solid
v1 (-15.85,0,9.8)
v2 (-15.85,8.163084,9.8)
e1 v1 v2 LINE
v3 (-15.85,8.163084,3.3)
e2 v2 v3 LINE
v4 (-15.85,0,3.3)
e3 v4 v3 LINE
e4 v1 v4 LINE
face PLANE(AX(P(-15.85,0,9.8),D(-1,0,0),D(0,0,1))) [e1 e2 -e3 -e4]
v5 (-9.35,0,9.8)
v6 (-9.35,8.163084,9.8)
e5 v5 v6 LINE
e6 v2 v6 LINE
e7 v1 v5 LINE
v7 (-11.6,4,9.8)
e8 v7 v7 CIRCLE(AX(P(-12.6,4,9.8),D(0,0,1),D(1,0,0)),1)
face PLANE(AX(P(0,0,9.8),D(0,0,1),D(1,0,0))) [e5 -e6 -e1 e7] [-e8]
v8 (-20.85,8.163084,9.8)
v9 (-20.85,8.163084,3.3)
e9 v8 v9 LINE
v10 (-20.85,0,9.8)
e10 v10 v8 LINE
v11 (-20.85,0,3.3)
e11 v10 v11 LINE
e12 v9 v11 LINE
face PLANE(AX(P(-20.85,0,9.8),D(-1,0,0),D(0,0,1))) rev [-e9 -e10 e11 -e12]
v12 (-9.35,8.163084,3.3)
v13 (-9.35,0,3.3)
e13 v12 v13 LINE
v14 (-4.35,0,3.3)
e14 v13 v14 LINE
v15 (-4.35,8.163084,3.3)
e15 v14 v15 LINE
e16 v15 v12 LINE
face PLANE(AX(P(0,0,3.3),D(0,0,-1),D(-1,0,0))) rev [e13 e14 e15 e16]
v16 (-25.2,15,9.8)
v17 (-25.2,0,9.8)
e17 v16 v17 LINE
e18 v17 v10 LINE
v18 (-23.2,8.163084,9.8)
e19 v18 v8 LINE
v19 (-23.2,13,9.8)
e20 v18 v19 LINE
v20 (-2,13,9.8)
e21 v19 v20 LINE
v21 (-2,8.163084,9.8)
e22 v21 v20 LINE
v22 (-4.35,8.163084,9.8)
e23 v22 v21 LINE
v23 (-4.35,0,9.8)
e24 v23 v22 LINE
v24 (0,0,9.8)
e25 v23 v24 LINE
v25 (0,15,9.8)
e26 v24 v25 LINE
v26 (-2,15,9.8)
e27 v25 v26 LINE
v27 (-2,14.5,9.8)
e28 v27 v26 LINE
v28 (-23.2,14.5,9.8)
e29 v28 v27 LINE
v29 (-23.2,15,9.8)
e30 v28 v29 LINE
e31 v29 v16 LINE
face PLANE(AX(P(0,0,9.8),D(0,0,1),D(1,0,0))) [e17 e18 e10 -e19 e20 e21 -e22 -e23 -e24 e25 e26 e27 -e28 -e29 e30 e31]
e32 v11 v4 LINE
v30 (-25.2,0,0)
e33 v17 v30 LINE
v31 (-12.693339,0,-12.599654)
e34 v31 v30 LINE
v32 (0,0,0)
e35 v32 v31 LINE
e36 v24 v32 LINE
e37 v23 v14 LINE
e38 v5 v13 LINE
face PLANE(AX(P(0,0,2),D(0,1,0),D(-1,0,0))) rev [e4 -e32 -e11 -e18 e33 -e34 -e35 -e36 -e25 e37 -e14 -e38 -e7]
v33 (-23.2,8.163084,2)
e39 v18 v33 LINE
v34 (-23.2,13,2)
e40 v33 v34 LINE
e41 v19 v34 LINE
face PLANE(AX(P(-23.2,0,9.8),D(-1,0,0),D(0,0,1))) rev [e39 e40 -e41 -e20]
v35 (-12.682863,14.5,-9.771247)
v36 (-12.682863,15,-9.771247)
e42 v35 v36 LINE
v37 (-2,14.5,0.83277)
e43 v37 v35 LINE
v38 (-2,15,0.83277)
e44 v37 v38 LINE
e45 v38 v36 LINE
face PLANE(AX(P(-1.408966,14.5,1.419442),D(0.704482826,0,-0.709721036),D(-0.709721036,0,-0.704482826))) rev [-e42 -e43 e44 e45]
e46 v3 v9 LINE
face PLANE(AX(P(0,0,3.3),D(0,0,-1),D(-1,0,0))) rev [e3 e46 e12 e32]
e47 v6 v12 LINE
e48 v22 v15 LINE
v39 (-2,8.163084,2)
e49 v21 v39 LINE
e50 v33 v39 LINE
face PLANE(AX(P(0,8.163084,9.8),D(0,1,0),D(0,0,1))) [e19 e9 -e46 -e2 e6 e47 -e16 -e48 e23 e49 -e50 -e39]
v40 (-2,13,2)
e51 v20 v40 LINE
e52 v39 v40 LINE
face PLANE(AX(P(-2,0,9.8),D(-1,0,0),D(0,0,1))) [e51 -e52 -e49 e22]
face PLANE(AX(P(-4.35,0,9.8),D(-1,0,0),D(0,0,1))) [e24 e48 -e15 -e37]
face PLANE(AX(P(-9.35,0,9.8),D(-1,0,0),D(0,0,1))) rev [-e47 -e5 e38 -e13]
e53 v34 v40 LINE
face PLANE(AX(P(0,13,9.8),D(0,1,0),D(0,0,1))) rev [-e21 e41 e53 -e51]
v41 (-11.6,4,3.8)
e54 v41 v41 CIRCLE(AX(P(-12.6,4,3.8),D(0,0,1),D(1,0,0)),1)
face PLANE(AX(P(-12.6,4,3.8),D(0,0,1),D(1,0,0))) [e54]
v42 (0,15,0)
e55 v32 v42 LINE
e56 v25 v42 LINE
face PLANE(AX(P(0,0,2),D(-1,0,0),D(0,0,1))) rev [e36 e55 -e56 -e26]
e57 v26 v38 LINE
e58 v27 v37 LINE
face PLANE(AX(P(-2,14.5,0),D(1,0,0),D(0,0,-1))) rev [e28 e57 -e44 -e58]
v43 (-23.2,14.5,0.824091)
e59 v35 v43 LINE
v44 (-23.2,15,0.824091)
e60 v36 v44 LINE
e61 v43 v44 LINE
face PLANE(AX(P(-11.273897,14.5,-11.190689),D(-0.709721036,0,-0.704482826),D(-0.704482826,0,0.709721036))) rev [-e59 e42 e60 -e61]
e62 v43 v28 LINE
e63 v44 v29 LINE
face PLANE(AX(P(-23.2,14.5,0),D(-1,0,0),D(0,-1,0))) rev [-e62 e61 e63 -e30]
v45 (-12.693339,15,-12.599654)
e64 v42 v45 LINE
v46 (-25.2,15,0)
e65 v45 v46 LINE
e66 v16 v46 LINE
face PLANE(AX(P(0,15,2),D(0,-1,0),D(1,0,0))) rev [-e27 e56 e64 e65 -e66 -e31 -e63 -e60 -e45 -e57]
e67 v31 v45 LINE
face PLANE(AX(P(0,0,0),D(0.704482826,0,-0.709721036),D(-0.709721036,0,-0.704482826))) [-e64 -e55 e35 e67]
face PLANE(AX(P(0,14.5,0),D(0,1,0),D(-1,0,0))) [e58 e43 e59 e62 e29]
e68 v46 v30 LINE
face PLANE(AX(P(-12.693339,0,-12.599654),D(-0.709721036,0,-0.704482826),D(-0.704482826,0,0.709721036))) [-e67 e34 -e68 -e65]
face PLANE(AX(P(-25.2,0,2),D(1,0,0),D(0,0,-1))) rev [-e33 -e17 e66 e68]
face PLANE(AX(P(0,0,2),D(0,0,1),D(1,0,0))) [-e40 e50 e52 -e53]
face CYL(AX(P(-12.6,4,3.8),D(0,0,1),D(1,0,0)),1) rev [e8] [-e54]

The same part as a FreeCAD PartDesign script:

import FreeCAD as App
import Part
import Sketcher
from FreeCAD import Vector


def add_polygon(sketch, points):
    """Adds a closed chain of lines whose ends are joined by coincident constraints."""
    first, n = sketch.GeometryCount, len(points)
    for a, b in zip(points, points[1:] + points[:1]):
        sketch.addGeometry(Part.LineSegment(App.Vector(*a, 0), App.Vector(*b, 0)), False)
    for i in range(n):
        sketch.addConstraint(Sketcher.Constraint("Coincident", first + i, 2, first + (i + 1) % n, 1))

doc = App.newDocument("Part")
body = doc.addObject("PartDesign::Body", "Body")

sketch1 = body.newObject("Sketcher::SketchObject", "Sketch")
sketch1.AttachmentSupport = (doc.getObject("XY_Plane"), [""])
sketch1.MapMode = "FlatFace"
add_polygon(sketch1, [(-25, 15), (-25, 0), (0, 0), (0, 15)])
sketch1.addConstraint(Sketcher.Constraint("Vertical", 0))
sketch1.addConstraint(Sketcher.Constraint("Horizontal", 1))
sketch1.addConstraint(Sketcher.Constraint("Vertical", 2))
sketch1.addConstraint(Sketcher.Constraint("Horizontal", 3))
sketch1.addConstraint(Sketcher.Constraint("Coincident", 1, 2, -1, 1))
sketch1.addConstraint(Sketcher.Constraint("DistanceY", 0, 2, 0, 1, 15.0))
sketch1.addConstraint(Sketcher.Constraint("DistanceX", 1, 1, 1, 2, 25.2))
pad1 = body.newObject("PartDesign::Pad", "Pad")
pad1.Profile = sketch1
pad1.Length = 2

sketch2 = body.newObject("Sketcher::SketchObject", "Sketch001")
sketch2.AttachmentSupport = (doc.getObject("XY_Plane"), [""])
sketch2.MapMode = "FlatFace"
sketch2.AttachmentOffset = App.Placement(Vector(0, 0, 2), App.Rotation())
add_polygon(sketch2, [(-25.2, 15), (-25.2, 0), (-23.2, 0), (-23.2, 13), (-2, 13), (-2, 0), (0, 0), (0, 15)])
sketch2.addConstraint(Sketcher.Constraint("Vertical", 0))
sketch2.addConstraint(Sketcher.Constraint("Horizontal", 1))
sketch2.addConstraint(Sketcher.Constraint("Vertical", 2))
sketch2.addConstraint(Sketcher.Constraint("Horizontal", 3))
sketch2.addConstraint(Sketcher.Constraint("Vertical", 4))
sketch2.addConstraint(Sketcher.Constraint("Horizontal", 5))
sketch2.addConstraint(Sketcher.Constraint("Vertical", 6))
sketch2.addConstraint(Sketcher.Constraint("Horizontal", 7))
sketch2.addConstraint(Sketcher.Constraint("Coincident", 5, 2, -1, 1))
sketch2.addConstraint(Sketcher.Constraint("PointOnObject", 0, 2, -1))
sketch2.addConstraint(Sketcher.Constraint("Equal", 1, 5))
sketch2.addConstraint(Sketcher.Constraint("DistanceX", 1, 1, 1, 2, 2.0))
sketch2.addConstraint(Sketcher.Constraint("DistanceY", 0, 2, 0, 1, 15.0))
sketch2.addConstraint(Sketcher.Constraint("DistanceY", 2, 1, 2, 2, 13.0))
sketch2.addConstraint(Sketcher.Constraint("DistanceX", 3, 1, 3, 2, 21.2))
pad2 = body.newObject("PartDesign::Pad", "Pad001")
pad2.Profile = sketch2
pad2.Length = 7.8

sketch3 = body.newObject("Sketcher::SketchObject", "Sketch002")
sketch3.AttachmentSupport = (doc.getObject("XZ_Plane"), [""])
sketch3.MapMode = "FlatFace"
sketch3.AttachmentOffset = App.Placement(Vector(0, 0, -15), App.Rotation())
add_polygon(sketch3, [(0, 0), (-13, -13), (-25, 0)])
sketch3.addConstraint(Sketcher.Constraint("Horizontal", 2))
sketch3.addConstraint(Sketcher.Constraint("Coincident", 2, 2, -1, 1))
sketch3.addConstraint(Sketcher.Constraint("Perpendicular", 0, 1))
sketch3.addConstraint(Sketcher.Constraint("DistanceX", 2, 1, 2, 2, 25.2))
sketch3.addConstraint(Sketcher.Constraint("Distance", 0, 17.88497))
pad3 = body.newObject("PartDesign::Pad", "Pad002")
pad3.Profile = sketch3
pad3.Length = 15

sketch4 = body.newObject("Sketcher::SketchObject", "Sketch003")
sketch4.AttachmentSupport = (doc.getObject("XY_Plane"), [""])
sketch4.MapMode = "FlatFace"
sketch4.AttachmentOffset = App.Placement(Vector(0, 0, 2), App.Rotation())
add_polygon(sketch4, [(-15.8, 8.2), (-15.8, 0), (-9.3, 0), (-9.3, 8.2)])
add_polygon(sketch4, [(-4.3, 8.2), (-4.3, 0), (-2, 0), (-2, 8.2)])
add_polygon(sketch4, [(-23.2, 8.2), (-23.2, 0), (-20.9, 0), (-20.9, 8.2)])
sketch4.addConstraint(Sketcher.Constraint("Vertical", 0))
sketch4.addConstraint(Sketcher.Constraint("Horizontal", 1))
sketch4.addConstraint(Sketcher.Constraint("Vertical", 2))
sketch4.addConstraint(Sketcher.Constraint("Horizontal", 3))
sketch4.addConstraint(Sketcher.Constraint("Vertical", 4))
sketch4.addConstraint(Sketcher.Constraint("Horizontal", 5))
sketch4.addConstraint(Sketcher.Constraint("Vertical", 6))
sketch4.addConstraint(Sketcher.Constraint("Horizontal", 7))
sketch4.addConstraint(Sketcher.Constraint("Vertical", 8))
sketch4.addConstraint(Sketcher.Constraint("Horizontal", 9))
sketch4.addConstraint(Sketcher.Constraint("Vertical", 10))
sketch4.addConstraint(Sketcher.Constraint("Horizontal", 11))
sketch4.addConstraint(Sketcher.Constraint("PointOnObject", 0, 2, -1))
sketch4.addConstraint(Sketcher.Constraint("PointOnObject", 4, 2, -1))
sketch4.addConstraint(Sketcher.Constraint("PointOnObject", 8, 2, -1))
sketch4.addConstraint(Sketcher.Constraint("Horizontal", 3, 2, 6, 2))
sketch4.addConstraint(Sketcher.Constraint("Horizontal", 7, 2, 10, 2))
sketch4.addConstraint(Sketcher.Constraint("Equal", 7, 9))
sketch4.addConstraint(Sketcher.Constraint("DistanceX", 1, 1, 1, 2, 6.5))
sketch4.addConstraint(Sketcher.Constraint("DistanceX", 5, 2, -1, 1, 2.0))
sketch4.addConstraint(Sketcher.Constraint("DistanceX", 1, 2, 4, 2, 5.0))
sketch4.addConstraint(Sketcher.Constraint("DistanceX", 9, 2, 0, 2, 5.0))
sketch4.addConstraint(Sketcher.Constraint("DistanceX", 5, 1, 5, 2, 2.35))
sketch4.addConstraint(Sketcher.Constraint("DistanceY", 0, 2, 0, 1, 8.163084))
pad4 = body.newObject("PartDesign::Pad", "Pad003")
pad4.Profile = sketch4
pad4.Length = 7.8

sketch5 = body.newObject("Sketcher::SketchObject", "Sketch004")
sketch5.AttachmentSupport = (doc.getObject("XY_Plane"), [""])
sketch5.MapMode = "FlatFace"
sketch5.AttachmentOffset = App.Placement(Vector(0, 0, 2), App.Rotation())
add_polygon(sketch5, [(-21, 8), (-21, 0), (-16, 0), (-16, 8)])
add_polygon(sketch5, [(-9, 8), (-9, 0), (-4, 0), (-4, 8)])
sketch5.addConstraint(Sketcher.Constraint("Vertical", 0))
sketch5.addConstraint(Sketcher.Constraint("Horizontal", 1))
sketch5.addConstraint(Sketcher.Constraint("Vertical", 2))
sketch5.addConstraint(Sketcher.Constraint("Horizontal", 3))
sketch5.addConstraint(Sketcher.Constraint("Vertical", 4))
sketch5.addConstraint(Sketcher.Constraint("Horizontal", 5))
sketch5.addConstraint(Sketcher.Constraint("Vertical", 6))
sketch5.addConstraint(Sketcher.Constraint("Horizontal", 7))
sketch5.addConstraint(Sketcher.Constraint("PointOnObject", 0, 2, -1))
sketch5.addConstraint(Sketcher.Constraint("PointOnObject", 4, 2, -1))
sketch5.addConstraint(Sketcher.Constraint("Horizontal", 3, 2, 6, 2))
sketch5.addConstraint(Sketcher.Constraint("Equal", 3, 5))
sketch5.addConstraint(Sketcher.Constraint("DistanceX", 1, 1, 1, 2, 5.0))
sketch5.addConstraint(Sketcher.Constraint("DistanceX", 1, 2, 4, 2, 6.5))
sketch5.addConstraint(Sketcher.Constraint("DistanceX", 0, 2, -1, 1, 20.85))
sketch5.addConstraint(Sketcher.Constraint("DistanceY", 0, 2, 0, 1, 8.163084))
pad5 = body.newObject("PartDesign::Pad", "Pad004")
pad5.Profile = sketch5
pad5.Length = 1.3

sketch6 = body.newObject("Sketcher::SketchObject", "Sketch005")
sketch6.AttachmentSupport = (doc.getObject("XZ_Plane"), [""])
sketch6.MapMode = "FlatFace"
sketch6.AttachmentOffset = App.Placement(Vector(0, 0, -15), App.Rotation())
add_polygon(sketch6, [(-13, -10), (-23, 1), (-23, 10), (-2, 10), (-2, 1)])
sketch6.addConstraint(Sketcher.Constraint("Vertical", 1))
sketch6.addConstraint(Sketcher.Constraint("Horizontal", 2))
sketch6.addConstraint(Sketcher.Constraint("Vertical", 3))
sketch6.addConstraint(Sketcher.Constraint("Perpendicular", 0, 4))
sketch6.addConstraint(Sketcher.Constraint("DistanceX", 2, 1, 2, 2, 21.2))
sketch6.addConstraint(Sketcher.Constraint("DistanceX", 2, 2, -1, 1, 2.0))
sketch6.addConstraint(Sketcher.Constraint("DistanceY", -1, 1, 1, 2, 9.8))
sketch6.addConstraint(Sketcher.Constraint("Distance", 4, 15.0522))
sketch6.addConstraint(Sketcher.Constraint("DistanceY", 1, 1, 1, 2, 8.975909))
sketch6.addConstraint(Sketcher.Constraint("DistanceY", 3, 2, 3, 1, 8.96723))
pocket1 = body.newObject("PartDesign::Pocket", "Pocket")
pocket1.Profile = sketch6
pocket1.Length = 0.5
pocket1.Reversed = True

sketch7 = body.newObject("Sketcher::SketchObject", "Sketch006")
sketch7.AttachmentSupport = (doc.getObject("XY_Plane"), [""])
sketch7.MapMode = "FlatFace"
sketch7.AttachmentOffset = App.Placement(Vector(0, 0, 9.8), App.Rotation())
sketch7.addGeometry(Part.Circle(Vector(-12.6, 4, 0), Vector(0, 0, 1), 1), False)
sketch7.addConstraint(Sketcher.Constraint("Diameter", 0, 2.0))
sketch7.addConstraint(Sketcher.Constraint("DistanceY", -1, 1, 0, 3, 4.0))
sketch7.addConstraint(Sketcher.Constraint("DistanceX", 0, 3, -1, 1, 12.6))
pocket2 = body.newObject("PartDesign::Pocket", "Pocket001")
pocket2.Profile = sketch7
pocket2.Length = 6

doc.recompute()
